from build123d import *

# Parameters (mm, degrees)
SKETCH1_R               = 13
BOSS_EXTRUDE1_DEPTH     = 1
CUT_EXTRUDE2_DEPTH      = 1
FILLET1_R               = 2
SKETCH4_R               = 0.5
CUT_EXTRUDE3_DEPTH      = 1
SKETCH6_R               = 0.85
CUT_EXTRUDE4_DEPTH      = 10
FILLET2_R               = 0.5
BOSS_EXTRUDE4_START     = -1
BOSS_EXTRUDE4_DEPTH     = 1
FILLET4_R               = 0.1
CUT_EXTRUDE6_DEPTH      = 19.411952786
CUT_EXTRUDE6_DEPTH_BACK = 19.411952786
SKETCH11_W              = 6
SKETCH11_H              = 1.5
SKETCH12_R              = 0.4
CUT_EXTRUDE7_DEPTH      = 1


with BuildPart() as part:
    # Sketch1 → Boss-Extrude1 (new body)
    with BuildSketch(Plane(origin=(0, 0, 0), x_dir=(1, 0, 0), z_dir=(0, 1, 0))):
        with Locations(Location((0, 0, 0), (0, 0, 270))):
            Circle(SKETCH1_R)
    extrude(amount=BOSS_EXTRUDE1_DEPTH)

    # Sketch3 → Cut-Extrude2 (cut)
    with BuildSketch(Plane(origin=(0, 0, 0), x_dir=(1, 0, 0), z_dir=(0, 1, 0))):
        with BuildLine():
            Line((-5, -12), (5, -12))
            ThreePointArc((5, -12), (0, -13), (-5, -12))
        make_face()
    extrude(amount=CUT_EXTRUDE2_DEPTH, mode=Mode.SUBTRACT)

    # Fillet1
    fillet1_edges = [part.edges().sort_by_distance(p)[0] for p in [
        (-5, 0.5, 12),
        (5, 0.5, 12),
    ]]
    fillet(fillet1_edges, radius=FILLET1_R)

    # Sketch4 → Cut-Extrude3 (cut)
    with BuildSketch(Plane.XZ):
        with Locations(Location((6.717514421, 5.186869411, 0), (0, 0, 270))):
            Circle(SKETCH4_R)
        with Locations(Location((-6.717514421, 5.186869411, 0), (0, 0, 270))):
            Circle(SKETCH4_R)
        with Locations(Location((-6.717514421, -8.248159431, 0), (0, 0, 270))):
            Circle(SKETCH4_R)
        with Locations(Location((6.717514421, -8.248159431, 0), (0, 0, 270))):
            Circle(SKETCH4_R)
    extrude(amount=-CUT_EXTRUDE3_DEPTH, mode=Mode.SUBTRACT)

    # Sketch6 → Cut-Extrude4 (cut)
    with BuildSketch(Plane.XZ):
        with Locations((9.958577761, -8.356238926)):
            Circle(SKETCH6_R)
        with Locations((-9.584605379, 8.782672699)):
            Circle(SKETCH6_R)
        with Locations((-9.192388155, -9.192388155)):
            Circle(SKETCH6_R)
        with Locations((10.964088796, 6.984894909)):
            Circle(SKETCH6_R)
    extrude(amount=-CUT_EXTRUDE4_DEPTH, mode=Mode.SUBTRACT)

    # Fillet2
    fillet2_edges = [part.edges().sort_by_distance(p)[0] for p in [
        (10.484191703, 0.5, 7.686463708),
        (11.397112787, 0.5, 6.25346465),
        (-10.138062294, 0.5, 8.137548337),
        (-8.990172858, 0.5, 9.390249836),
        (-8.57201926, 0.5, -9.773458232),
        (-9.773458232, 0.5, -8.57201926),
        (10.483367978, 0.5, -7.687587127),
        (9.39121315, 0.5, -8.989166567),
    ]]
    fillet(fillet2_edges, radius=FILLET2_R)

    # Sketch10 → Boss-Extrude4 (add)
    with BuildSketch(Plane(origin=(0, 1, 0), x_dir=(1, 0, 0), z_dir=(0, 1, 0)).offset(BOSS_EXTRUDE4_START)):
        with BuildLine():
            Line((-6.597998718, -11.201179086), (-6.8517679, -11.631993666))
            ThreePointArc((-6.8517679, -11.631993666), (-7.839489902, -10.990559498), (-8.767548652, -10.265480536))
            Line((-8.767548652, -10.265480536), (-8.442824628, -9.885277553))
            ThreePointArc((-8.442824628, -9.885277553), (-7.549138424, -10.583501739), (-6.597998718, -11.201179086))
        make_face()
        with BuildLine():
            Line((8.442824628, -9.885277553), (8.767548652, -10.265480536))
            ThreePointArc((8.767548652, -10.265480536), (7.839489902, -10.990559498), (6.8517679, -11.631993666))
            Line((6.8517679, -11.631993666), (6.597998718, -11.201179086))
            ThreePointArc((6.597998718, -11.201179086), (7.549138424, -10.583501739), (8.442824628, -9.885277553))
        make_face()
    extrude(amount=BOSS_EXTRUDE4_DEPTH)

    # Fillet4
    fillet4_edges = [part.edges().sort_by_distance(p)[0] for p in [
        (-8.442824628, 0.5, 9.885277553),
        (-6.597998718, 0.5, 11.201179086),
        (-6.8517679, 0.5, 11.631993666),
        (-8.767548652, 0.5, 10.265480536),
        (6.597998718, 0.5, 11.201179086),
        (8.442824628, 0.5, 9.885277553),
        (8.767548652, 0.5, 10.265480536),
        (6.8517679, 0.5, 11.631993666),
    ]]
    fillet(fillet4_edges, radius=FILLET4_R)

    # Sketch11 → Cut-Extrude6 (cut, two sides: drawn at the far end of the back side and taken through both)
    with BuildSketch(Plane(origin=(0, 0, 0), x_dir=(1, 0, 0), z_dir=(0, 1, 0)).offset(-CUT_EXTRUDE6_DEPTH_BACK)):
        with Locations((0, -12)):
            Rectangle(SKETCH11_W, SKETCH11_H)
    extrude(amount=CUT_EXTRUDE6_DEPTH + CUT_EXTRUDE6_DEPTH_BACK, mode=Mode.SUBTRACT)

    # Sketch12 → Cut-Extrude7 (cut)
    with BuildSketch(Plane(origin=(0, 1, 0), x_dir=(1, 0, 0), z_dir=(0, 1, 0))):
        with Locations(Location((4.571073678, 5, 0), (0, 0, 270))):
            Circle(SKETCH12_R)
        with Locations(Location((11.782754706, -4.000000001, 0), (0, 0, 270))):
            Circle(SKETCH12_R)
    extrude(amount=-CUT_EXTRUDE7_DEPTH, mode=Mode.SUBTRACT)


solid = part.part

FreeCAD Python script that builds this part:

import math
import FreeCAD as App
import Part
import Sketcher
Q = App.Units.Quantity


def edges_at(feature, points):
    """Names of the edges that pass closest to the given points."""
    edges = feature.Shape.Edges
    near = lambda p: min(range(len(edges)), key=lambda i: edges[i].distToShape(Part.Vertex(*p))[0])
    return sorted({f"Edge{near(p) + 1}" for p in points})

doc = App.newDocument("Part")
body = doc.addObject("PartDesign::Body", "Body")

sketch1 = body.newObject("Sketcher::SketchObject", "Sketch")
sketch1.AttachmentSupport = (doc.getObject("XZ_Plane"), [""])
sketch1.MapMode = "FlatFace"
sketch1.addGeometry(Part.Circle(App.Vector(0, 0, 0), App.Vector(0, 0, 1), 13), False)
sketch1.addConstraint([
    Sketcher.Constraint("Coincident", 0, 3, -1, 1),
    Sketcher.Constraint("Diameter", 0, Q("26 mm")),
])
pad1 = body.newObject("PartDesign::Pad", "Pad")
pad1.Profile = sketch1
pad1.Length = 1
pad1.Reversed = True

sketch2 = body.newObject("Sketcher::SketchObject", "Sketch001")
sketch2.AttachmentSupport = (doc.getObject("XZ_Plane"), [""])
sketch2.MapMode = "FlatFace"
sketch2.addGeometry([
    Part.LineSegment(App.Vector(5, 12, 0), App.Vector(-5, 12, 0)),
    Part.ArcOfCircle(Part.Circle(App.Vector(0, 0, 0), App.Vector(0, 0, 1), 13), math.radians(67), math.radians(113)),
], False)
sketch2.addConstraint([
    Sketcher.Constraint("Coincident", 0, 1, 1, 1),
    Sketcher.Constraint("Coincident", 1, 2, 0, 2),
    Sketcher.Constraint("Horizontal", 0),
    Sketcher.Constraint("Coincident", 1, 3, -1, 1),
    Sketcher.Constraint("Radius", 1, Q("13 mm")),
    Sketcher.Constraint("DistanceX", 0, 2, 0, 1, Q("10 mm")),
])
pocket1 = body.newObject("PartDesign::Pocket", "Pocket")
pocket1.Profile = sketch2
pocket1.Length = 1
doc.recompute()

fillet = body.newObject("PartDesign::Fillet", "Fillet")
fillet.Base = (pocket1, edges_at(pocket1, [(-5, 0.5, 12), (5, 0.5, 12)]))
fillet.Radius = 2

sketch3 = body.newObject("Sketcher::SketchObject", "Sketch002")
sketch3.AttachmentSupport = (doc.getObject("XZ_Plane"), [""])
sketch3.MapMode = "FlatFace"
sketch3.addGeometry([
    Part.Circle(App.Vector(6.7, 5.2, 0), App.Vector(0, 0, 1), 0.5),
    Part.Circle(App.Vector(-6.7, 5.2, 0), App.Vector(0, 0, 1), 0.5),
    Part.Circle(App.Vector(-6.7, -8.2, 0), App.Vector(0, 0, 1), 0.5),
    Part.Circle(App.Vector(6.7, -8.2, 0), App.Vector(0, 0, 1), 0.5),
], False)
sketch3.addConstraint([
    Sketcher.Constraint("Equal", 0, 1),
    Sketcher.Constraint("Equal", 1, 2),
    Sketcher.Constraint("Equal", 2, 3),
    Sketcher.Constraint("Symmetric", 0, 3, 1, 3, -2),
    Sketcher.Constraint("Symmetric", 2, 3, 3, 3, -2),
    Sketcher.Constraint("Vertical", 1, 3, 2, 3),
    Sketcher.Constraint("Diameter", 0, Q("1 mm")),
    Sketcher.Constraint("DistanceY", -1, 1, 0, 3, Q("5.186869 mm")),
    Sketcher.Constraint("DistanceY", 2, 3, -1, 1, Q("8.248159 mm")),
    Sketcher.Constraint("DistanceX", 1, 3, 0, 3, Q("13.435029 mm")),
])
pocket2 = body.newObject("PartDesign::Pocket", "Pocket001")
pocket2.Profile = sketch3
pocket2.Length = 1

sketch4 = body.newObject("Sketcher::SketchObject", "Sketch003")
sketch4.AttachmentSupport = (doc.getObject("XZ_Plane"), [""])
sketch4.MapMode = "FlatFace"
sketch4.addGeometry([
    Part.Circle(App.Vector(10, -8.4, 0), App.Vector(0, 0, 1), 0.8),
    Part.Circle(App.Vector(-9.6, 8.8, 0), App.Vector(0, 0, 1), 0.8),
    Part.Circle(App.Vector(-9.2, -9.2, 0), App.Vector(0, 0, 1), 0.8),
    Part.Circle(App.Vector(11, 7, 0), App.Vector(0, 0, 1), 0.8),
], False)
sketch4.addConstraint([
    Sketcher.Constraint("Equal", 0, 1),
    Sketcher.Constraint("Equal", 1, 2),
    Sketcher.Constraint("Equal", 2, 3),
    Sketcher.Constraint("Diameter", 0, Q("1.7 mm")),
    Sketcher.Constraint("DistanceY", 0, 3, -1, 1, Q("8.356239 mm")),
    Sketcher.Constraint("DistanceX", 2, 3, -1, 1, Q("9.192388 mm")),
    Sketcher.Constraint("DistanceY", 2, 3, -1, 1, Q("9.192388 mm")),
    Sketcher.Constraint("DistanceX", -1, 1, 3, 3, Q("10.964089 mm")),
    Sketcher.Constraint("DistanceY", 0, 3, 1, 3, Q("17.138912 mm")),
    Sketcher.Constraint("DistanceX", 0, 3, 3, 3, Q("1.005511 mm")),
    Sketcher.Constraint("DistanceX", 1, 3, -1, 1, Q("9.584605 mm")),
    Sketcher.Constraint("DistanceY", -1, 1, 3, 3, Q("6.984895 mm")),
])
pocket3 = body.newObject("PartDesign::Pocket", "Pocket002")
pocket3.Profile = sketch4
pocket3.Length = 10
doc.recompute()

fillet2 = body.newObject("PartDesign::Fillet", "Fillet001")
fillet2.Base = (pocket3, edges_at(pocket3, [
    (10.484, 0.5, 7.686),
    (11.397, 0.5, 6.253),
    (-10.138, 0.5, 8.138),
    (-8.99, 0.5, 9.39),
    (-8.572, 0.5, -9.773),
    (-9.773, 0.5, -8.572),
    (10.483, 0.5, -7.688),
    (9.391, 0.5, -8.989),
]))
fillet2.Radius = 0.5

sketch5 = body.newObject("Sketcher::SketchObject", "Sketch004")
sketch5.AttachmentSupport = (doc.getObject("XZ_Plane"), [""])
sketch5.MapMode = "FlatFace"
sketch5.addGeometry([
    Part.LineSegment(App.Vector(-6.9, 11.6, 0), App.Vector(-6.6, 11.2, 0)),
    Part.ArcOfCircle(Part.Circle(App.Vector(0, 0, 0), App.Vector(0, 0, 1), 13), math.radians(120.5), math.radians(130.5)),
    Part.LineSegment(App.Vector(-8.4, 9.9, 0), App.Vector(-8.8, 10.3, 0)),
    Part.ArcOfCircle(Part.Circle(App.Vector(0, 0, 0), App.Vector(0, 0, 1), 13.5), math.radians(120.5), math.radians(130.5)),
    Part.LineSegment(App.Vector(8.8, 10.3, 0), App.Vector(8.4, 9.9, 0)),
    Part.ArcOfCircle(Part.Circle(App.Vector(0, 0, 0), App.Vector(0, 0, 1), 13), math.radians(49.5), math.radians(59.5)),
    Part.LineSegment(App.Vector(6.6, 11.2, 0), App.Vector(6.9, 11.6, 0)),
    Part.ArcOfCircle(Part.Circle(App.Vector(0, 0, 0), App.Vector(0, 0, 1), 13.5), math.radians(49.5), math.radians(59.5)),
], False)
sketch5.addConstraint([
    Sketcher.Constraint("Coincident", 0, 2, 1, 1),
    Sketcher.Constraint("Coincident", 1, 2, 2, 1),
    Sketcher.Constraint("Coincident", 2, 2, 3, 2),
    Sketcher.Constraint("Coincident", 3, 1, 0, 1),
    Sketcher.Constraint("Coincident", 4, 2, 5, 1),
    Sketcher.Constraint("Coincident", 5, 2, 6, 1),
    Sketcher.Constraint("Coincident", 6, 2, 7, 2),
    Sketcher.Constraint("Coincident", 7, 1, 4, 1),
    Sketcher.Constraint("Coincident", 1, 3, -1, 1),
    Sketcher.Constraint("Coincident", 3, 3, -1, 1),
    Sketcher.Constraint("Coincident", 5, 3, -1, 1),
    Sketcher.Constraint("Coincident", 7, 3, -1, 1),
    Sketcher.Constraint("Equal", 1, 5),
    Sketcher.Constraint("Equal", 3, 7),
    Sketcher.Constraint("Horizontal", 1, 2, 4, 2),
    Sketcher.Constraint("Horizontal", 0, 2, 5, 2),
    Sketcher.Constraint("Horizontal", 3, 1, 6, 2),
    Sketcher.Constraint("Horizontal", 2, 2, 7, 1),
    Sketcher.Constraint("Radius", 1, Q("13 mm")),
    Sketcher.Constraint("Radius", 3, Q("13.5 mm")),
    Sketcher.Constraint("Angle", 0, Q("-59.5 deg")),
    Sketcher.Constraint("Angle", 2, Q("130.5 deg")),
    Sketcher.Constraint("DistanceX", 0, 2, -1, 1, Q("6.597999 mm")),
    Sketcher.Constraint("DistanceY", 1, 2, 0, 2, Q("1.315902 mm")),
])
pad2 = body.newObject("PartDesign::Pad", "Pad001")
pad2.Profile = sketch5
pad2.Length = 1
pad2.Reversed = True
doc.recompute()

fillet3 = body.newObject("PartDesign::Fillet", "Fillet002")
fillet3.Base = (pad2, edges_at(pad2, [
    (-8.443, 0.5, 9.885),
    (-6.598, 0.5, 11.201),
    (-6.852, 0.5, 11.632),
    (-8.768, 0.5, 10.265),
    (6.598, 0.5, 11.201),
    (8.443, 0.5, 9.885),
    (8.768, 0.5, 10.265),
    (6.852, 0.5, 11.632),
]))
fillet3.Radius = 0.1

sketch6 = body.newObject("Sketcher::SketchObject", "Sketch005")
sketch6.AttachmentSupport = (doc.getObject("XZ_Plane"), [""])
sketch6.MapMode = "FlatFace"
sketch6.addGeometry([
    Part.LineSegment(App.Vector(-3, 11.2, 0), App.Vector(-3, 12.8, 0)),
    Part.LineSegment(App.Vector(-3, 12.8, 0), App.Vector(3, 12.8, 0)),
    Part.LineSegment(App.Vector(3, 12.8, 0), App.Vector(3, 11.2, 0)),
    Part.LineSegment(App.Vector(3, 11.2, 0), App.Vector(-3, 11.2, 0)),
], False)
sketch6.addConstraint([
    Sketcher.Constraint("Coincident", 0, 2, 1, 1),
    Sketcher.Constraint("Coincident", 1, 2, 2, 1),
    Sketcher.Constraint("Coincident", 2, 2, 3, 1),
    Sketcher.Constraint("Coincident", 3, 2, 0, 1),
    Sketcher.Constraint("Vertical", 0),
    Sketcher.Constraint("Horizontal", 1),
    Sketcher.Constraint("Vertical", 2),
    Sketcher.Constraint("Horizontal", 3),
    Sketcher.Constraint("DistanceX", 1, 1, 1, 2, Q("6 mm")),
    Sketcher.Constraint("DistanceY", 0, 1, 0, 2, Q("1.5 mm")),
    Sketcher.Constraint("DistanceX", 0, 2, -1, 1, Q("3 mm")),
    Sketcher.Constraint("DistanceY", -1, 1, 0, 2, Q("12.75 mm")),
])
pocket4 = body.newObject("PartDesign::Pocket", "Pocket003")
pocket4.Profile = sketch6
pocket4.Type = "ThroughAll"
pocket4.Midplane = True

sketch7 = body.newObject("Sketcher::SketchObject", "Sketch006")
sketch7.AttachmentSupport = (doc.getObject("XZ_Plane"), [""])
sketch7.MapMode = "FlatFace"
sketch7.AttachmentOffset = App.Placement(App.Vector(0, 0, -1), App.Rotation())
sketch7.addGeometry([
    Part.Circle(App.Vector(4.57, -5, 0), App.Vector(0, 0, 1), 0.4),
    Part.Circle(App.Vector(11.78, 4, 0), App.Vector(0, 0, 1), 0.4),
], False)
sketch7.addConstraint([
    Sketcher.Constraint("Equal", 0, 1),
    Sketcher.Constraint("Diameter", 0, Q("0.8 mm")),
    Sketcher.Constraint("DistanceY", 0, 3, -1, 1, Q("5 mm")),
    Sketcher.Constraint("DistanceY", -1, 1, 1, 3, Q("4 mm")),
    Sketcher.Constraint("DistanceX", 0, 3, 1, 3, Q("7.211681 mm")),
    Sketcher.Constraint("DistanceX", -1, 1, 0, 3, Q("4.571074 mm")),
])
pocket5 = body.newObject("PartDesign::Pocket", "Pocket004")
pocket5.Profile = sketch7
pocket5.Length = 1
pocket5.Reversed = True

doc.recompute()
